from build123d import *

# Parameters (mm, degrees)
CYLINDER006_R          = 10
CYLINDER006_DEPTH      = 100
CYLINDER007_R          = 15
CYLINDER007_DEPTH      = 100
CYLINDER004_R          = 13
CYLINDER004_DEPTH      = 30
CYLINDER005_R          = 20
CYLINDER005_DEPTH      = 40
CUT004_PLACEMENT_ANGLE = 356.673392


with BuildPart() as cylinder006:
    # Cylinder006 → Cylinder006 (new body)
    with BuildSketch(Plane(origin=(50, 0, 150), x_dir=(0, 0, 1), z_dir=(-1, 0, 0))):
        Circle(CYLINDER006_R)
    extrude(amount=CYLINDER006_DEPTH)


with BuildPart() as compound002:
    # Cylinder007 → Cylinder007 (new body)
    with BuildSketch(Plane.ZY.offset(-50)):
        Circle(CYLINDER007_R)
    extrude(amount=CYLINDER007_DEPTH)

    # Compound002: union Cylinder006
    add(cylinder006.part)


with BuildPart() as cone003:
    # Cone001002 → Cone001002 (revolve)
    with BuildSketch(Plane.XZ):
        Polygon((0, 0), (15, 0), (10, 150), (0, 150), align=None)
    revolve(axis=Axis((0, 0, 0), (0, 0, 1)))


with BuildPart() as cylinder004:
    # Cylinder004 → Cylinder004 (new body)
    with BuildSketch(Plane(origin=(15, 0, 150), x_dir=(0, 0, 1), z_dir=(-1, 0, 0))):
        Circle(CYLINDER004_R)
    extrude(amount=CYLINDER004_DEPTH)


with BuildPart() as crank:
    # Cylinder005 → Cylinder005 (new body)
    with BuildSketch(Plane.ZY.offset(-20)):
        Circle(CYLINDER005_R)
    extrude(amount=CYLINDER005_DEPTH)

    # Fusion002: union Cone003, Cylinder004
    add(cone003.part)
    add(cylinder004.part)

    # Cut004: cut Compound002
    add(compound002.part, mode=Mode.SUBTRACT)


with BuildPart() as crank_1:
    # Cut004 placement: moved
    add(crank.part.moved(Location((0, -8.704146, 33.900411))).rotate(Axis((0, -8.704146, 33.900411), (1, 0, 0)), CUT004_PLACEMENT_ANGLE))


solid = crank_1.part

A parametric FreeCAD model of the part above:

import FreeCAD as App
import Part
import Sketcher

V = App.Vector

doc = App.newDocument("Part")
body = doc.addObject("PartDesign::Body", "Body")

sketch1 = doc.addObject("Sketcher::SketchObject", "Sketch")
body.addObject(sketch1)
sketch1.AttachmentSupport = (doc.YZ_Plane, [""])
sketch1.MapMode = "FlatFace"
sketch1.AttachmentOffset = App.Placement(V(0, 0, 50), App.Rotation())
sketch1.addGeometry(Part.Circle(V(0, 150, 0), V(0, 0, 1), 10), False)
sketch1.addConstraint(Sketcher.Constraint("PointOnObject", 0, 3, -2))
sketch1.addConstraint(Sketcher.Constraint("Diameter", 0, 20.0))
sketch1.addConstraint(Sketcher.Constraint("DistanceY", -1, 1, 0, 3, 150.0))
pad1 = doc.addObject("PartDesign::Pad", "Pad")
body.addObject(pad1)
pad1.Profile = sketch1
pad1.Length = 100
pad1.Reversed = True
body2 = doc.addObject("PartDesign::Body", "Body001")
body2.AllowCompound = True

sketch2 = doc.addObject("Sketcher::SketchObject", "Sketch001")
body2.addObject(sketch2)
sketch2.AttachmentSupport = (doc.getObject("YZ_Plane001"), [""])
sketch2.MapMode = "FlatFace"
sketch2.AttachmentOffset = App.Placement(V(0, 0, 50), App.Rotation())
sketch2.addGeometry(Part.Circle(V(0, 0, 0), V(0, 0, 1), 15), False)
sketch2.addConstraint(Sketcher.Constraint("Coincident", 0, 3, -1, 1))
sketch2.addConstraint(Sketcher.Constraint("Diameter", 0, 30.0))
pad2 = doc.addObject("PartDesign::Pad", "Pad001")
body2.addObject(pad2)
pad2.Profile = sketch2
pad2.Length = 100
pad2.Reversed = True
doc.recompute()

boolean = doc.addObject("PartDesign::Boolean", "Boolean")
body2.addObject(boolean)
boolean.Type = "Fuse"
boolean.addObjects([body])
body3 = doc.addObject("PartDesign::Body", "Body002")

sketch3 = doc.addObject("Sketcher::SketchObject", "Sketch002")
body3.addObject(sketch3)
sketch3.AttachmentSupport = (doc.getObject("XZ_Plane002"), [""])
sketch3.MapMode = "FlatFace"
sketch3.addGeometry(Part.LineSegment(V(0, 0, 0), V(15, 0, 0)), False)
sketch3.addGeometry(Part.LineSegment(V(15, 0, 0), V(10, 150, 0)), False)
sketch3.addGeometry(Part.LineSegment(V(10, 150, 0), V(0, 150, 0)), False)
sketch3.addGeometry(Part.LineSegment(V(0, 150, 0), V(0, 0, 0)), False)
sketch3.addConstraint(Sketcher.Constraint("Coincident", 0, 2, 1, 1))
sketch3.addConstraint(Sketcher.Constraint("Coincident", 1, 2, 2, 1))
sketch3.addConstraint(Sketcher.Constraint("Coincident", 2, 2, 3, 1))
sketch3.addConstraint(Sketcher.Constraint("Coincident", 3, 2, 0, 1))
sketch3.addConstraint(Sketcher.Constraint("Horizontal", 0))
sketch3.addConstraint(Sketcher.Constraint("Horizontal", 2))
sketch3.addConstraint(Sketcher.Constraint("Vertical", 3))
sketch3.addConstraint(Sketcher.Constraint("Coincident", 3, 2, -1, 1))
sketch3.addConstraint(Sketcher.Constraint("DistanceX", 0, 1, 0, 2, 15.0))
sketch3.addConstraint(Sketcher.Constraint("DistanceX", 2, 2, 2, 1, 10.0))
sketch3.addConstraint(Sketcher.Constraint("DistanceY", 3, 2, 3, 1, 150.0))
revolution = doc.addObject("PartDesign::Revolution", "Revolution")
body3.addObject(revolution)
revolution.Profile = sketch3
revolution.ReferenceAxis = (sketch3, ["V_Axis"])
revolution.Angle = 360
body4 = doc.addObject("PartDesign::Body", "Body003")

sketch4 = doc.addObject("Sketcher::SketchObject", "Sketch003")
body4.addObject(sketch4)
sketch4.AttachmentSupport = (doc.getObject("YZ_Plane003"), [""])
sketch4.MapMode = "FlatFace"
sketch4.AttachmentOffset = App.Placement(V(0, 0, 15), App.Rotation())
sketch4.addGeometry(Part.Circle(V(0, 150, 0), V(0, 0, 1), 13), False)
sketch4.addConstraint(Sketcher.Constraint("PointOnObject", 0, 3, -2))
sketch4.addConstraint(Sketcher.Constraint("Diameter", 0, 26.0))
sketch4.addConstraint(Sketcher.Constraint("DistanceY", -1, 1, 0, 3, 150.0))
pad3 = doc.addObject("PartDesign::Pad", "Pad002")
body4.addObject(pad3)
pad3.Profile = sketch4
pad3.Length = 30
pad3.Reversed = True
body5 = doc.addObject("PartDesign::Body", "Body004")

sketch5 = doc.addObject("Sketcher::SketchObject", "Sketch004")
body5.addObject(sketch5)
sketch5.AttachmentSupport = (doc.getObject("YZ_Plane004"), [""])
sketch5.MapMode = "FlatFace"
sketch5.AttachmentOffset = App.Placement(V(0, 0, 20), App.Rotation())
sketch5.addGeometry(Part.Circle(V(0, 0, 0), V(0, 0, 1), 20), False)
sketch5.addConstraint(Sketcher.Constraint("Coincident", 0, 3, -1, 1))
sketch5.addConstraint(Sketcher.Constraint("Diameter", 0, 40.0))
pad4 = doc.addObject("PartDesign::Pad", "Pad003")
body5.addObject(pad4)
pad4.Profile = sketch5
pad4.Length = 40
pad4.Reversed = True
doc.recompute()

boolean2 = doc.addObject("PartDesign::Boolean", "Boolean001")
body5.addObject(boolean2)
boolean2.Type = "Fuse"
boolean2.addObjects([body3])
doc.recompute()

boolean3 = doc.addObject("PartDesign::Boolean", "Boolean002")
body5.addObject(boolean3)
boolean3.Type = "Fuse"
boolean3.addObjects([body4])
doc.recompute()

boolean4 = doc.addObject("PartDesign::Boolean", "Boolean003")
body5.addObject(boolean4)
boolean4.Type = "Cut"
boolean4.addObjects([body2])
body6 = doc.addObject("PartDesign::Body", "Body005")
doc.recompute()

body5.Placement = App.Placement(V(0, -8.704146, 33.900411), App.Rotation(V(1, 0, 0), 356.673392))
boolean5 = doc.addObject("PartDesign::Boolean", "Boolean004")
body6.addObject(boolean5)
boolean5.Type = "Fuse"
boolean5.addObjects([body5])

doc.recompute()
